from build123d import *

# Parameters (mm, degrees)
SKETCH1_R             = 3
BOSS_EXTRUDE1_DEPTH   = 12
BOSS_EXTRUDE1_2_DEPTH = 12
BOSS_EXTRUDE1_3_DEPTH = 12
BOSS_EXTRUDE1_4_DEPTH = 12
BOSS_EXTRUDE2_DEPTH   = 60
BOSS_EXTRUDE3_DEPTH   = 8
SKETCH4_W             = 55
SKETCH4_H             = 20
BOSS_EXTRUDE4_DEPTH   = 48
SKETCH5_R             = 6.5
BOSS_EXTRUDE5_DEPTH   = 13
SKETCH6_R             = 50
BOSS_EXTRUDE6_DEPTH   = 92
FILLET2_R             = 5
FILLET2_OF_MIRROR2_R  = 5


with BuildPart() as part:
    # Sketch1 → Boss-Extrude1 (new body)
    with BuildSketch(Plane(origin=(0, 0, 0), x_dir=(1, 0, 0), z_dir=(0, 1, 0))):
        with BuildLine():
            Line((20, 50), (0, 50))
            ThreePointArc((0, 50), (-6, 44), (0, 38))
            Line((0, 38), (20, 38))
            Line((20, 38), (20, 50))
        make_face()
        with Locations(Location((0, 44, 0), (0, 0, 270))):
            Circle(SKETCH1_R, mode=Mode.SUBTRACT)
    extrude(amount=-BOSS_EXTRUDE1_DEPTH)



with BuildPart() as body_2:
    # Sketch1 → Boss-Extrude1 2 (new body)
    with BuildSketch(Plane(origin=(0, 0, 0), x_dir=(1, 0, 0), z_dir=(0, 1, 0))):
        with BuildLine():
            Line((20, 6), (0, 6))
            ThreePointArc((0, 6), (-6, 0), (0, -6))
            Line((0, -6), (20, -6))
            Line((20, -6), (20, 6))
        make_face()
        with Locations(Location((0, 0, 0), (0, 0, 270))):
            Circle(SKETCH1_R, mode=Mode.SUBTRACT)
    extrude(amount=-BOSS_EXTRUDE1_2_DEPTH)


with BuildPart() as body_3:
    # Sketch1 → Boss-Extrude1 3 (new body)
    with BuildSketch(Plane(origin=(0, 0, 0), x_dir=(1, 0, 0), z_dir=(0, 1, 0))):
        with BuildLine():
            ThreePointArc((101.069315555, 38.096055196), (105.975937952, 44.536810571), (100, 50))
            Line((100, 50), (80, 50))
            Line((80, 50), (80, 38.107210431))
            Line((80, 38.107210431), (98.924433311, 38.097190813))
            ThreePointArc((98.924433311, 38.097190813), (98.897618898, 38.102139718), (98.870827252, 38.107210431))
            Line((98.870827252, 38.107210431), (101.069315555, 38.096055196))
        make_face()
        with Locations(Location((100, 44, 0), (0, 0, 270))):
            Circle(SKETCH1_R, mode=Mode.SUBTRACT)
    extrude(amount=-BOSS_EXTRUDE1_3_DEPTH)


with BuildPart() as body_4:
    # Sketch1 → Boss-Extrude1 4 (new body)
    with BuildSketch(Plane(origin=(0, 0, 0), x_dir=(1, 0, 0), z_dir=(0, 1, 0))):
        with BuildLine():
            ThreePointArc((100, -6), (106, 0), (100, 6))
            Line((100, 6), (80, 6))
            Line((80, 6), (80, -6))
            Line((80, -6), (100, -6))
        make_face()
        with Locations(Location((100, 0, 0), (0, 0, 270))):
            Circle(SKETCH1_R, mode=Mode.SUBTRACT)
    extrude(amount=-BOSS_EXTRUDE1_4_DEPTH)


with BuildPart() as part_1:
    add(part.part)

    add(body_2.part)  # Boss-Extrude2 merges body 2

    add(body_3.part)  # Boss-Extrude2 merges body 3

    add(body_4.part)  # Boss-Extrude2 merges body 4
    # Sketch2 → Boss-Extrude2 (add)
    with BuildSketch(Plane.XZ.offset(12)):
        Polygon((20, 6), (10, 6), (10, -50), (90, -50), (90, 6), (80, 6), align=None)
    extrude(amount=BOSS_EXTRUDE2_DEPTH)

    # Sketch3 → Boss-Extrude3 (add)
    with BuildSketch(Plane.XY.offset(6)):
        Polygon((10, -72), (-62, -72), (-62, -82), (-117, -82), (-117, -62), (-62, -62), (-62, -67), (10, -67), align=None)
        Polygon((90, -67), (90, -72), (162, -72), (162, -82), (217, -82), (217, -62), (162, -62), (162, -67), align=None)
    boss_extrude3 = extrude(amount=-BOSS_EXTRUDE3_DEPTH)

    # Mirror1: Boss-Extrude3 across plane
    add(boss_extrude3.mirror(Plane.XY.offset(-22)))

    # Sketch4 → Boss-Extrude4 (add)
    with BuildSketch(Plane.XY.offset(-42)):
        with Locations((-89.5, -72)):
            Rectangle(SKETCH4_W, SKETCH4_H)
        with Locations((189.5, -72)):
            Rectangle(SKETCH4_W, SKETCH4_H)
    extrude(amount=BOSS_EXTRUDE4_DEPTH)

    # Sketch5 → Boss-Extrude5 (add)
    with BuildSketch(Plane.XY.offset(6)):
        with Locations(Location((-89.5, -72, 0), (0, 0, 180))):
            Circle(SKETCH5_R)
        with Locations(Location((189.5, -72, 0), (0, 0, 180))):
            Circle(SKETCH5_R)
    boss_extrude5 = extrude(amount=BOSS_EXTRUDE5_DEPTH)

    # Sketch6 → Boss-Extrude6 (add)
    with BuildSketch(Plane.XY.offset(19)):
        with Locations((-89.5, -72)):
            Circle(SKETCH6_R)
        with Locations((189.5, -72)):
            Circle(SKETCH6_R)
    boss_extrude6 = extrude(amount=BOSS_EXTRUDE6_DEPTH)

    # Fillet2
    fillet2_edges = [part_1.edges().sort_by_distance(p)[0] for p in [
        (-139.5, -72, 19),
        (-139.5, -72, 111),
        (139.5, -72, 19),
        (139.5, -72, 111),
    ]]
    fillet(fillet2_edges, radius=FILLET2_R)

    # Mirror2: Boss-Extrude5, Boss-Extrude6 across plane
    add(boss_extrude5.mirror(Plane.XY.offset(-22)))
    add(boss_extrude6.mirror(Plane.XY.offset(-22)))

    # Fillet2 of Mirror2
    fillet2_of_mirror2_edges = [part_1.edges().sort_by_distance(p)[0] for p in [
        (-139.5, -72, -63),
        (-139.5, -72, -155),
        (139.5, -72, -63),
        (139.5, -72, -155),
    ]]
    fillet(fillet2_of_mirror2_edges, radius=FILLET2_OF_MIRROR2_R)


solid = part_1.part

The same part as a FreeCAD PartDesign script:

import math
import FreeCAD as App
import Part
import Sketcher
from FreeCAD import Vector
Q = App.Units.Quantity


def edges_at(feature, points):
    """Names of the edges that pass closest to the given points."""
    edges = feature.Shape.Edges
    near = lambda p: min(range(len(edges)), key=lambda i: edges[i].distToShape(Part.Vertex(*p))[0])
    return sorted({f"Edge{near(p) + 1}" for p in points})

doc = App.newDocument("Part")
params = doc.addObject("Spreadsheet::Sheet", "Params")
for row, (alias, value) in enumerate([
    ("sketch1_diameter", "6 mm"),
    ("sketch1_radius", "6 mm"),
    ("sketch1_width", "20 mm"),
    ("pad1_length", "12 mm"),
    ("sketch2_diameter", "6 mm"),
    ("sketch2_radius", "6 mm"),
    ("sketch2_width", "20 mm"),
    ("pad2_length", "12 mm"),
    ("sketch3_diameter", "6 mm"),
    ("sketch3_radius", "6 mm"),
    ("sketch3_width", "20 mm"),
    ("pad3_length", "12 mm"),
    ("sketch4_diameter", "6 mm"),
    ("sketch4_radius", "6 mm"),
    ("sketch4_width", "20 mm"),
    ("pad4_length", "12 mm"),
    ("sketch5_width", "80 mm"),
    ("sketch5_height", "56 mm"),
    ("pad5_length", "60 mm"),
    ("sketch6_width", "72 mm"),
    ("sketch6_width2", "55 mm"),
    ("sketch6_height", "5 mm"),
    ("sketch6_height2", "20 mm"),
    ("pad6_length", "8 mm"),
    ("sketch7_width", "55 mm"),
    ("sketch7_height", "20 mm"),
    ("pad7_length", "48 mm"),
    ("sketch8_diameter", "13 mm"),
    ("pad8_length", "13 mm"),
    ("sketch9_diameter", "100 mm"),
    ("pad9_length", "92 mm"),
    ("fillet_radius", "5 mm"),
    ("fillet2_radius", "5 mm"),
], start=1):
    params.set(f"A{row}", alias)
    params.set(f"B{row}", "=" + value)
    params.setAlias(f"B{row}", alias)

body = doc.addObject("PartDesign::Body", "Body")

sketch1 = doc.addObject("Sketcher::SketchObject", "Sketch")
body.addObject(sketch1)
sketch1.AttachmentSupport = (doc.XZ_Plane, [""])
sketch1.MapMode = "FlatFace"
sketch1.addGeometry(Part.LineSegment(Vector(20, -50, 0), Vector(0, -50, 0)), False)
sketch1.addGeometry(Part.ArcOfCircle(Part.Circle(Vector(0, -44, 0), Vector(0, 0, 1), 6), math.radians(90), math.radians(270)), False)
sketch1.addGeometry(Part.LineSegment(Vector(0, -38, 0), Vector(20, -38, 0)), False)
sketch1.addGeometry(Part.LineSegment(Vector(20, -38, 0), Vector(20, -50, 0)), False)
sketch1.addGeometry(Part.Circle(Vector(0, -44, 0), Vector(0, 0, 1), 3), False)
sketch1.addConstraint(Sketcher.Constraint("Tangent", 0, 2, 1, 2))
sketch1.addConstraint(Sketcher.Constraint("Tangent", 1, 1, 2, 1))
sketch1.addConstraint(Sketcher.Constraint("Coincident", 2, 2, 3, 1))
sketch1.addConstraint(Sketcher.Constraint("Coincident", 3, 2, 0, 1))
sketch1.addConstraint(Sketcher.Constraint("Horizontal", 0))
sketch1.addConstraint(Sketcher.Constraint("Horizontal", 2))
sketch1.addConstraint(Sketcher.Constraint("Vertical", 3))
sketch1.addConstraint(Sketcher.Constraint("Coincident", 4, 3, 1, 3))
sketch1.addConstraint(Sketcher.Constraint("PointOnObject", 1, 3, -2))
sketch1.addConstraint(Sketcher.Constraint("Diameter", 4, Q("6 mm")))
sketch1.addConstraint(Sketcher.Constraint("Radius", 1, Q("6 mm")))
sketch1.addConstraint(Sketcher.Constraint("DistanceX", 0, 2, 0, 1, Q("20 mm")))
sketch1.addConstraint(Sketcher.Constraint("DistanceY", 1, 3, -1, 1, Q("44 mm")))
sketch1.setExpression("Constraints[9]", "Params.sketch1_diameter")
sketch1.setExpression("Constraints[10]", "Params.sketch1_radius")
sketch1.setExpression("Constraints[11]", "Params.sketch1_width")
pad1 = doc.addObject("PartDesign::Pad", "Pad")
body.addObject(pad1)
pad1.Profile = sketch1
pad1.setExpression("Length", "Params.pad1_length")
body2 = doc.addObject("PartDesign::Body", "Body001")

sketch2 = doc.addObject("Sketcher::SketchObject", "Sketch001")
body2.addObject(sketch2)
sketch2.AttachmentSupport = (doc.getObject("XZ_Plane001"), [""])
sketch2.MapMode = "FlatFace"
sketch2.addGeometry(Part.LineSegment(Vector(20, -6, 0), Vector(0, -6, 0)), False)
sketch2.addGeometry(Part.ArcOfCircle(Part.Circle(Vector(0, 0, 0), Vector(0, 0, 1), 6), math.radians(90), math.radians(270)), False)
sketch2.addGeometry(Part.LineSegment(Vector(0, 6, 0), Vector(20, 6, 0)), False)
sketch2.addGeometry(Part.LineSegment(Vector(20, 6, 0), Vector(20, -6, 0)), False)
sketch2.addGeometry(Part.Circle(Vector(0, 0, 0), Vector(0, 0, 1), 3), False)
sketch2.addConstraint(Sketcher.Constraint("Tangent", 0, 2, 1, 2))
sketch2.addConstraint(Sketcher.Constraint("Tangent", 1, 1, 2, 1))
sketch2.addConstraint(Sketcher.Constraint("Coincident", 2, 2, 3, 1))
sketch2.addConstraint(Sketcher.Constraint("Coincident", 3, 2, 0, 1))
sketch2.addConstraint(Sketcher.Constraint("Horizontal", 0))
sketch2.addConstraint(Sketcher.Constraint("Horizontal", 2))
sketch2.addConstraint(Sketcher.Constraint("Vertical", 3))
sketch2.addConstraint(Sketcher.Constraint("Coincident", 1, 3, -1, 1))
sketch2.addConstraint(Sketcher.Constraint("Coincident", 4, 3, -1, 1))
sketch2.addConstraint(Sketcher.Constraint("Diameter", 4, Q("6 mm")))
sketch2.addConstraint(Sketcher.Constraint("Radius", 1, Q("6 mm")))
sketch2.addConstraint(Sketcher.Constraint("DistanceX", 0, 2, 0, 1, Q("20 mm")))
sketch2.setExpression("Constraints[9]", "Params.sketch2_diameter")
sketch2.setExpression("Constraints[10]", "Params.sketch2_radius")
sketch2.setExpression("Constraints[11]", "Params.sketch2_width")
pad2 = doc.addObject("PartDesign::Pad", "Pad001")
body2.addObject(pad2)
pad2.Profile = sketch2
pad2.setExpression("Length", "Params.pad2_length")
body3 = doc.addObject("PartDesign::Body", "Body002")

sketch3 = doc.addObject("Sketcher::SketchObject", "Sketch002")
body3.addObject(sketch3)
sketch3.AttachmentSupport = (doc.getObject("XZ_Plane002"), [""])
sketch3.MapMode = "FlatFace"
sketch3.addGeometry(Part.ArcOfCircle(Part.Circle(Vector(100, -44, 0), Vector(0, 0, 1), 6), math.radians(-90), math.radians(79.733946)), False)
sketch3.addGeometry(Part.LineSegment(Vector(100, -50, 0), Vector(80, -50, 0)), False)
sketch3.addGeometry(Part.LineSegment(Vector(80, -50, 0), Vector(80, -38.10721, 0)), False)
sketch3.addGeometry(Part.LineSegment(Vector(80, -38.10721, 0), Vector(98.924433, -38.097191, 0)), False)
sketch3.addGeometry(Part.ArcOfCircle(Part.Circle(Vector(100, -44, 0), Vector(0, 0, 1), 6), math.radians(100.326725), math.radians(100.847492)), False)
sketch3.addGeometry(Part.LineSegment(Vector(98.870827, -38.10721, 0), Vector(101.069316, -38.096055, 0)), False)
sketch3.addGeometry(Part.Circle(Vector(100, -44, 0), Vector(0, 0, 1), 3), False)
sketch3.addConstraint(Sketcher.Constraint("Tangent", 0, 1, 1, 1))
sketch3.addConstraint(Sketcher.Constraint("Coincident", 1, 2, 2, 1))
sketch3.addConstraint(Sketcher.Constraint("Coincident", 2, 2, 3, 1))
sketch3.addConstraint(Sketcher.Constraint("Coincident", 3, 2, 4, 1))
sketch3.addConstraint(Sketcher.Constraint("Coincident", 4, 2, 5, 1))
sketch3.addConstraint(Sketcher.Constraint("Coincident", 5, 2, 0, 2))
sketch3.addConstraint(Sketcher.Constraint("Horizontal", 1))
sketch3.addConstraint(Sketcher.Constraint("Vertical", 2))
sketch3.addConstraint(Sketcher.Constraint("Coincident", 4, 3, 0, 3))
sketch3.addConstraint(Sketcher.Constraint("Coincident", 6, 3, 0, 3))
sketch3.addConstraint(Sketcher.Constraint("Equal", 0, 4))
sketch3.addConstraint(Sketcher.Constraint("Horizontal", 2, 2, 4, 2))
sketch3.addConstraint(Sketcher.Constraint("Diameter", 6, Q("6 mm")))
sketch3.addConstraint(Sketcher.Constraint("Radius", 0, Q("6 mm")))
sketch3.addConstraint(Sketcher.Constraint("DistanceX", 1, 2, 1, 1, Q("20 mm")))
sketch3.addConstraint(Sketcher.Constraint("DistanceX", -1, 1, 0, 3, Q("100 mm")))
sketch3.addConstraint(Sketcher.Constraint("DistanceY", 0, 3, -1, 1, Q("44 mm")))
sketch3.addConstraint(Sketcher.Constraint("DistanceY", 2, 1, 2, 2, Q("11.89279 mm")))
sketch3.addConstraint(Sketcher.Constraint("DistanceY", 3, 2, -1, 1, Q("38.097191 mm")))
sketch3.addConstraint(Sketcher.Constraint("DistanceX", 4, 2, 5, 2, Q("2.198488 mm")))
sketch3.setExpression("Constraints[12]", "Params.sketch3_diameter")
sketch3.setExpression("Constraints[13]", "Params.sketch3_radius")
sketch3.setExpression("Constraints[14]", "Params.sketch3_width")
pad3 = doc.addObject("PartDesign::Pad", "Pad002")
body3.addObject(pad3)
pad3.Profile = sketch3
pad3.setExpression("Length", "Params.pad3_length")
body4 = doc.addObject("PartDesign::Body", "Body003")

sketch4 = doc.addObject("Sketcher::SketchObject", "Sketch003")
body4.addObject(sketch4)
sketch4.AttachmentSupport = (doc.getObject("XZ_Plane003"), [""])
sketch4.MapMode = "FlatFace"
sketch4.addGeometry(Part.ArcOfCircle(Part.Circle(Vector(100, 0, 0), Vector(0, 0, 1), 6), math.radians(-90), math.radians(90)), False)
sketch4.addGeometry(Part.LineSegment(Vector(100, -6, 0), Vector(80, -6, 0)), False)
sketch4.addGeometry(Part.LineSegment(Vector(80, -6, 0), Vector(80, 6, 0)), False)
sketch4.addGeometry(Part.LineSegment(Vector(80, 6, 0), Vector(100, 6, 0)), False)
sketch4.addGeometry(Part.Circle(Vector(100, 0, 0), Vector(0, 0, 1), 3), False)
sketch4.addConstraint(Sketcher.Constraint("Tangent", 0, 1, 1, 1))
sketch4.addConstraint(Sketcher.Constraint("Coincident", 1, 2, 2, 1))
sketch4.addConstraint(Sketcher.Constraint("Coincident", 2, 2, 3, 1))
sketch4.addConstraint(Sketcher.Constraint("Tangent", 3, 2, 0, 2))
sketch4.addConstraint(Sketcher.Constraint("Horizontal", 1))
sketch4.addConstraint(Sketcher.Constraint("Vertical", 2))
sketch4.addConstraint(Sketcher.Constraint("Horizontal", 3))
sketch4.addConstraint(Sketcher.Constraint("Coincident", 4, 3, 0, 3))
sketch4.addConstraint(Sketcher.Constraint("PointOnObject", 0, 3, -1))
sketch4.addConstraint(Sketcher.Constraint("Diameter", 4, Q("6 mm")))
sketch4.addConstraint(Sketcher.Constraint("Radius", 0, Q("6 mm")))
sketch4.addConstraint(Sketcher.Constraint("DistanceX", 1, 2, 1, 1, Q("20 mm")))
sketch4.addConstraint(Sketcher.Constraint("DistanceX", -1, 1, 0, 3, Q("100 mm")))
sketch4.setExpression("Constraints[9]", "Params.sketch4_diameter")
sketch4.setExpression("Constraints[10]", "Params.sketch4_radius")
sketch4.setExpression("Constraints[11]", "Params.sketch4_width")
pad4 = doc.addObject("PartDesign::Pad", "Pad003")
body4.addObject(pad4)
pad4.Profile = sketch4
pad4.setExpression("Length", "Params.pad4_length")
body.AllowCompound = True
doc.recompute()

boolean = doc.addObject("PartDesign::Boolean", "Boolean")
body.addObject(boolean)
boolean.Type = "Fuse"
boolean.addObjects([body2])
doc.recompute()

boolean2 = doc.addObject("PartDesign::Boolean", "Boolean001")
body.addObject(boolean2)
boolean2.Type = "Fuse"
boolean2.addObjects([body3])
doc.recompute()

boolean3 = doc.addObject("PartDesign::Boolean", "Boolean002")
body.addObject(boolean3)
boolean3.Type = "Fuse"
boolean3.addObjects([body4])

sketch5 = doc.addObject("Sketcher::SketchObject", "Sketch004")
body.addObject(sketch5)
sketch5.AttachmentSupport = (doc.XZ_Plane, [""])
sketch5.MapMode = "FlatFace"
sketch5.AttachmentOffset = App.Placement(Vector(0, 0, 12), App.Rotation())
sketch5.addGeometry(Part.LineSegment(Vector(10, 6, 0), Vector(10, -50, 0)), False)
sketch5.addGeometry(Part.LineSegment(Vector(10, -50, 0), Vector(90, -50, 0)), False)
sketch5.addGeometry(Part.LineSegment(Vector(90, -50, 0), Vector(90, 6, 0)), False)
sketch5.addGeometry(Part.LineSegment(Vector(90, 6, 0), Vector(10, 6, 0)), False)
sketch5.addConstraint(Sketcher.Constraint("Coincident", 0, 2, 1, 1))
sketch5.addConstraint(Sketcher.Constraint("Coincident", 1, 2, 2, 1))
sketch5.addConstraint(Sketcher.Constraint("Coincident", 2, 2, 3, 1))
sketch5.addConstraint(Sketcher.Constraint("Coincident", 3, 2, 0, 1))
sketch5.addConstraint(Sketcher.Constraint("Vertical", 0))
sketch5.addConstraint(Sketcher.Constraint("Horizontal", 1))
sketch5.addConstraint(Sketcher.Constraint("Vertical", 2))
sketch5.addConstraint(Sketcher.Constraint("Horizontal", 3))
sketch5.addConstraint(Sketcher.Constraint("DistanceX", 1, 1, 1, 2, Q("80 mm")))
sketch5.addConstraint(Sketcher.Constraint("DistanceY", 0, 2, 0, 1, Q("56 mm")))
sketch5.addConstraint(Sketcher.Constraint("DistanceX", -1, 1, 0, 2, Q("10 mm")))
sketch5.addConstraint(Sketcher.Constraint("DistanceY", 0, 2, -1, 1, Q("50 mm")))
sketch5.setExpression("Constraints[8]", "Params.sketch5_width")
sketch5.setExpression("Constraints[9]", "Params.sketch5_height")
pad5 = doc.addObject("PartDesign::Pad", "Pad004")
body.addObject(pad5)
pad5.Profile = sketch5
pad5.setExpression("Length", "Params.pad5_length")

sketch6 = doc.addObject("Sketcher::SketchObject", "Sketch005")
body.addObject(sketch6)
sketch6.AttachmentSupport = (doc.XY_Plane, [""])
sketch6.MapMode = "FlatFace"
sketch6.AttachmentOffset = App.Placement(Vector(0, 0, 6), App.Rotation())
sketch6.addGeometry(Part.LineSegment(Vector(-62, -72, 0), Vector(10, -72, 0)), False)
sketch6.addGeometry(Part.LineSegment(Vector(10, -72, 0), Vector(10, -67, 0)), False)
sketch6.addGeometry(Part.LineSegment(Vector(10, -67, 0), Vector(-62, -67, 0)), False)
sketch6.addGeometry(Part.LineSegment(Vector(-62, -67, 0), Vector(-62, -62, 0)), False)
sketch6.addGeometry(Part.LineSegment(Vector(-62, -62, 0), Vector(-117, -62, 0)), False)
sketch6.addGeometry(Part.LineSegment(Vector(-117, -62, 0), Vector(-117, -82, 0)), False)
sketch6.addGeometry(Part.LineSegment(Vector(-117, -82, 0), Vector(-62, -82, 0)), False)
sketch6.addGeometry(Part.LineSegment(Vector(-62, -82, 0), Vector(-62, -72, 0)), False)
sketch6.addGeometry(Part.LineSegment(Vector(90, -67, 0), Vector(90, -72, 0)), False)
sketch6.addGeometry(Part.LineSegment(Vector(90, -72, 0), Vector(162, -72, 0)), False)
sketch6.addGeometry(Part.LineSegment(Vector(162, -72, 0), Vector(162, -82, 0)), False)
sketch6.addGeometry(Part.LineSegment(Vector(162, -82, 0), Vector(217, -82, 0)), False)
sketch6.addGeometry(Part.LineSegment(Vector(217, -82, 0), Vector(217, -62, 0)), False)
sketch6.addGeometry(Part.LineSegment(Vector(217, -62, 0), Vector(162, -62, 0)), False)
sketch6.addGeometry(Part.LineSegment(Vector(162, -62, 0), Vector(162, -67, 0)), False)
sketch6.addGeometry(Part.LineSegment(Vector(162, -67, 0), Vector(90, -67, 0)), False)
sketch6.addConstraint(Sketcher.Constraint("Coincident", 0, 2, 1, 1))
sketch6.addConstraint(Sketcher.Constraint("Coincident", 1, 2, 2, 1))
sketch6.addConstraint(Sketcher.Constraint("Coincident", 2, 2, 3, 1))
sketch6.addConstraint(Sketcher.Constraint("Coincident", 3, 2, 4, 1))
sketch6.addConstraint(Sketcher.Constraint("Coincident", 4, 2, 5, 1))
sketch6.addConstraint(Sketcher.Constraint("Coincident", 5, 2, 6, 1))
sketch6.addConstraint(Sketcher.Constraint("Coincident", 6, 2, 7, 1))
sketch6.addConstraint(Sketcher.Constraint("Coincident", 7, 2, 0, 1))
sketch6.addConstraint(Sketcher.Constraint("Coincident", 8, 2, 9, 1))
sketch6.addConstraint(Sketcher.Constraint("Coincident", 9, 2, 10, 1))
sketch6.addConstraint(Sketcher.Constraint("Coincident", 10, 2, 11, 1))
sketch6.addConstraint(Sketcher.Constraint("Coincident", 11, 2, 12, 1))
sketch6.addConstraint(Sketcher.Constraint("Coincident", 12, 2, 13, 1))
sketch6.addConstraint(Sketcher.Constraint("Coincident", 13, 2, 14, 1))
sketch6.addConstraint(Sketcher.Constraint("Coincident", 14, 2, 15, 1))
sketch6.addConstraint(Sketcher.Constraint("Coincident", 15, 2, 8, 1))
sketch6.addConstraint(Sketcher.Constraint("Horizontal", 0))
sketch6.addConstraint(Sketcher.Constraint("Vertical", 1))
sketch6.addConstraint(Sketcher.Constraint("Horizontal", 2))
sketch6.addConstraint(Sketcher.Constraint("Vertical", 3))
sketch6.addConstraint(Sketcher.Constraint("Horizontal", 4))
sketch6.addConstraint(Sketcher.Constraint("Vertical", 5))
sketch6.addConstraint(Sketcher.Constraint("Horizontal", 6))
sketch6.addConstraint(Sketcher.Constraint("Vertical", 7))
sketch6.addConstraint(Sketcher.Constraint("Vertical", 8))
sketch6.addConstraint(Sketcher.Constraint("Horizontal", 9))
sketch6.addConstraint(Sketcher.Constraint("Vertical", 10))
sketch6.addConstraint(Sketcher.Constraint("Horizontal", 11))
sketch6.addConstraint(Sketcher.Constraint("Vertical", 12))
sketch6.addConstraint(Sketcher.Constraint("Horizontal", 13))
sketch6.addConstraint(Sketcher.Constraint("Vertical", 14))
sketch6.addConstraint(Sketcher.Constraint("Horizontal", 15))
sketch6.addConstraint(Sketcher.Constraint("Horizontal", 7, 2, 8, 2))
sketch6.addConstraint(Sketcher.Constraint("Horizontal", 6, 2, 10, 2))
sketch6.addConstraint(Sketcher.Constraint("Horizontal", 4, 2, 12, 2))
sketch6.addConstraint(Sketcher.Constraint("Horizontal", 2, 2, 14, 2))
sketch6.addConstraint(Sketcher.Constraint("Vertical", 3, 2, 6, 2))
sketch6.addConstraint(Sketcher.Constraint("Vertical", 10, 2, 13, 2))
sketch6.addConstraint(Sketcher.Constraint("Equal", 2, 9))
sketch6.addConstraint(Sketcher.Constraint("Equal", 6, 11))
sketch6.addConstraint(Sketcher.Constraint("Equal", 1, 3))
sketch6.addConstraint(Sketcher.Constraint("DistanceX", 0, 1, 0, 2, Q("72 mm")))
sketch6.addConstraint(Sketcher.Constraint("DistanceX", 4, 2, 4, 1, Q("55 mm")))
sketch6.addConstraint(Sketcher.Constraint("DistanceY", 1, 1, 1, 2, Q("5 mm")))
sketch6.addConstraint(Sketcher.Constraint("DistanceY", 5, 2, 5, 1, Q("20 mm")))
sketch6.addConstraint(Sketcher.Constraint("DistanceX", -1, 1, 0, 2, Q("10 mm")))
sketch6.addConstraint(Sketcher.Constraint("DistanceY", 0, 2, -1, 1, Q("72 mm")))
sketch6.addConstraint(Sketcher.Constraint("DistanceX", -1, 1, 8, 2, Q("90 mm")))
sketch6.setExpression("Constraints[41]", "Params.sketch6_width")
sketch6.setExpression("Constraints[42]", "Params.sketch6_width2")
sketch6.setExpression("Constraints[43]", "Params.sketch6_height")
sketch6.setExpression("Constraints[44]", "Params.sketch6_height2")
pad6 = doc.addObject("PartDesign::Pad", "Pad005")
body.addObject(pad6)
pad6.Profile = sketch6
pad6.setExpression("Length", "Params.pad6_length")
pad6.Reversed = True
doc.recompute()

datumplane = doc.addObject("PartDesign::Plane", "DatumPlane")
body.addObject(datumplane)
datumplane.AttachmentSupport = (doc.XY_Plane, [""])
datumplane.MapMode = "FlatFace"
datumplane.AttachmentOffset = App.Placement(Vector(0, 0, -22), App.Rotation())
mirrored = doc.addObject("PartDesign::Mirrored", "Mirrored")
body.addObject(mirrored)
mirrored.Originals = [pad6]
mirrored.MirrorPlane = (datumplane, [""])
body.Tip = mirrored

sketch7 = doc.addObject("Sketcher::SketchObject", "Sketch006")
body.addObject(sketch7)
sketch7.AttachmentSupport = (doc.XY_Plane, [""])
sketch7.MapMode = "FlatFace"
sketch7.AttachmentOffset = App.Placement(Vector(0, 0, -42), App.Rotation())
sketch7.addGeometry(Part.LineSegment(Vector(-117, -62, 0), Vector(-117, -82, 0)), False)
sketch7.addGeometry(Part.LineSegment(Vector(-117, -82, 0), Vector(-62, -82, 0)), False)
sketch7.addGeometry(Part.LineSegment(Vector(-62, -82, 0), Vector(-62, -62, 0)), False)
sketch7.addGeometry(Part.LineSegment(Vector(-62, -62, 0), Vector(-117, -62, 0)), False)
sketch7.addGeometry(Part.LineSegment(Vector(162, -62, 0), Vector(162, -82, 0)), False)
sketch7.addGeometry(Part.LineSegment(Vector(162, -82, 0), Vector(217, -82, 0)), False)
sketch7.addGeometry(Part.LineSegment(Vector(217, -82, 0), Vector(217, -62, 0)), False)
sketch7.addGeometry(Part.LineSegment(Vector(217, -62, 0), Vector(162, -62, 0)), False)
sketch7.addConstraint(Sketcher.Constraint("Coincident", 0, 2, 1, 1))
sketch7.addConstraint(Sketcher.Constraint("Coincident", 1, 2, 2, 1))
sketch7.addConstraint(Sketcher.Constraint("Coincident", 2, 2, 3, 1))
sketch7.addConstraint(Sketcher.Constraint("Coincident", 3, 2, 0, 1))
sketch7.addConstraint(Sketcher.Constraint("Coincident", 4, 2, 5, 1))
sketch7.addConstraint(Sketcher.Constraint("Coincident", 5, 2, 6, 1))
sketch7.addConstraint(Sketcher.Constraint("Coincident", 6, 2, 7, 1))
sketch7.addConstraint(Sketcher.Constraint("Coincident", 7, 2, 4, 1))
sketch7.addConstraint(Sketcher.Constraint("Vertical", 0))
sketch7.addConstraint(Sketcher.Constraint("Horizontal", 1))
sketch7.addConstraint(Sketcher.Constraint("Vertical", 2))
sketch7.addConstraint(Sketcher.Constraint("Horizontal", 3))
sketch7.addConstraint(Sketcher.Constraint("Vertical", 4))
sketch7.addConstraint(Sketcher.Constraint("Horizontal", 5))
sketch7.addConstraint(Sketcher.Constraint("Vertical", 6))
sketch7.addConstraint(Sketcher.Constraint("Horizontal", 7))
sketch7.addConstraint(Sketcher.Constraint("Horizontal", 1, 2, 4, 2))
sketch7.addConstraint(Sketcher.Constraint("Horizontal", 3, 2, 6, 2))
sketch7.addConstraint(Sketcher.Constraint("Equal", 3, 5))
sketch7.addConstraint(Sketcher.Constraint("DistanceX", 1, 1, 1, 2, Q("55 mm")))
sketch7.addConstraint(Sketcher.Constraint("DistanceY", 0, 2, 0, 1, Q("20 mm")))
sketch7.addConstraint(Sketcher.Constraint("DistanceX", 0, 2, -1, 1, Q("117 mm")))
sketch7.addConstraint(Sketcher.Constraint("DistanceY", 0, 2, -1, 1, Q("82 mm")))
sketch7.addConstraint(Sketcher.Constraint("DistanceX", -1, 1, 4, 2, Q("162 mm")))
sketch7.setExpression("Constraints[19]", "Params.sketch7_width")
sketch7.setExpression("Constraints[20]", "Params.sketch7_height")
pad7 = doc.addObject("PartDesign::Pad", "Pad006")
body.addObject(pad7)
pad7.Profile = sketch7
pad7.setExpression("Length", "Params.pad7_length")

sketch8 = doc.addObject("Sketcher::SketchObject", "Sketch007")
body.addObject(sketch8)
sketch8.AttachmentSupport = (doc.XY_Plane, [""])
sketch8.MapMode = "FlatFace"
sketch8.AttachmentOffset = App.Placement(Vector(0, 0, 6), App.Rotation())
sketch8.addGeometry(Part.Circle(Vector(-89.5, -72, 0), Vector(0, 0, 1), 6.5), False)
sketch8.addGeometry(Part.Circle(Vector(189.5, -72, 0), Vector(0, 0, 1), 6.5), False)
sketch8.addConstraint(Sketcher.Constraint("Equal", 0, 1))
sketch8.addConstraint(Sketcher.Constraint("Horizontal", 0, 3, 1, 3))
sketch8.addConstraint(Sketcher.Constraint("Diameter", 0, Q("13 mm")))
sketch8.addConstraint(Sketcher.Constraint("DistanceY", 0, 3, -1, 1, Q("72 mm")))
sketch8.addConstraint(Sketcher.Constraint("DistanceX", 0, 3, 1, 3, Q("279 mm")))
sketch8.addConstraint(Sketcher.Constraint("DistanceX", 0, 3, -1, 1, Q("89.5 mm")))
sketch8.setExpression("Constraints[2]", "Params.sketch8_diameter")
pad8 = doc.addObject("PartDesign::Pad", "Pad007")
body.addObject(pad8)
pad8.Profile = sketch8
pad8.setExpression("Length", "Params.pad8_length")

sketch9 = doc.addObject("Sketcher::SketchObject", "Sketch008")
body.addObject(sketch9)
sketch9.AttachmentSupport = (doc.XY_Plane, [""])
sketch9.MapMode = "FlatFace"
sketch9.AttachmentOffset = App.Placement(Vector(0, 0, 19), App.Rotation())
sketch9.addGeometry(Part.Circle(Vector(-89.5, -72, 0), Vector(0, 0, 1), 50), False)
sketch9.addGeometry(Part.Circle(Vector(189.5, -72, 0), Vector(0, 0, 1), 50), False)
sketch9.addConstraint(Sketcher.Constraint("Equal", 0, 1))
sketch9.addConstraint(Sketcher.Constraint("Horizontal", 0, 3, 1, 3))
sketch9.addConstraint(Sketcher.Constraint("Diameter", 0, Q("100 mm")))
sketch9.addConstraint(Sketcher.Constraint("DistanceY", 0, 3, -1, 1, Q("72 mm")))
sketch9.addConstraint(Sketcher.Constraint("DistanceX", 0, 3, 1, 3, Q("279 mm")))
sketch9.addConstraint(Sketcher.Constraint("DistanceX", 0, 3, -1, 1, Q("89.5 mm")))
sketch9.setExpression("Constraints[2]", "Params.sketch9_diameter")
pad9 = doc.addObject("PartDesign::Pad", "Pad008")
body.addObject(pad9)
pad9.Profile = sketch9
pad9.setExpression("Length", "Params.pad9_length")
doc.recompute()

fillet = doc.addObject("PartDesign::Fillet", "Fillet")
body.addObject(fillet)
fillet.Base = (pad9, edges_at(pad9, [
    (-139.5, -72, 19),
    (-139.5, -72, 111),
    (139.5, -72, 19),
    (139.5, -72, 111),
]))
fillet.setExpression("Radius", "Params.fillet_radius")
doc.recompute()

datumplane2 = doc.addObject("PartDesign::Plane", "DatumPlane001")
body.addObject(datumplane2)
datumplane2.AttachmentSupport = (doc.XY_Plane, [""])
datumplane2.MapMode = "FlatFace"
datumplane2.AttachmentOffset = App.Placement(Vector(0, 0, -22), App.Rotation())
mirrored2 = doc.addObject("PartDesign::Mirrored", "Mirrored001")
body.addObject(mirrored2)
mirrored2.Originals = [pad8, pad9]
mirrored2.MirrorPlane = (datumplane2, [""])
body.Tip = mirrored2
doc.recompute()

fillet2 = doc.addObject("PartDesign::Fillet", "Fillet001")
body.addObject(fillet2)
fillet2.Base = (mirrored2, edges_at(mirrored2, [
    (-139.5, -72, -63),
    (-139.5, -72, -155),
    (139.5, -72, -63),
    (139.5, -72, -155),
]))
fillet2.setExpression("Radius", "Params.fillet2_radius")

doc.recompute()
